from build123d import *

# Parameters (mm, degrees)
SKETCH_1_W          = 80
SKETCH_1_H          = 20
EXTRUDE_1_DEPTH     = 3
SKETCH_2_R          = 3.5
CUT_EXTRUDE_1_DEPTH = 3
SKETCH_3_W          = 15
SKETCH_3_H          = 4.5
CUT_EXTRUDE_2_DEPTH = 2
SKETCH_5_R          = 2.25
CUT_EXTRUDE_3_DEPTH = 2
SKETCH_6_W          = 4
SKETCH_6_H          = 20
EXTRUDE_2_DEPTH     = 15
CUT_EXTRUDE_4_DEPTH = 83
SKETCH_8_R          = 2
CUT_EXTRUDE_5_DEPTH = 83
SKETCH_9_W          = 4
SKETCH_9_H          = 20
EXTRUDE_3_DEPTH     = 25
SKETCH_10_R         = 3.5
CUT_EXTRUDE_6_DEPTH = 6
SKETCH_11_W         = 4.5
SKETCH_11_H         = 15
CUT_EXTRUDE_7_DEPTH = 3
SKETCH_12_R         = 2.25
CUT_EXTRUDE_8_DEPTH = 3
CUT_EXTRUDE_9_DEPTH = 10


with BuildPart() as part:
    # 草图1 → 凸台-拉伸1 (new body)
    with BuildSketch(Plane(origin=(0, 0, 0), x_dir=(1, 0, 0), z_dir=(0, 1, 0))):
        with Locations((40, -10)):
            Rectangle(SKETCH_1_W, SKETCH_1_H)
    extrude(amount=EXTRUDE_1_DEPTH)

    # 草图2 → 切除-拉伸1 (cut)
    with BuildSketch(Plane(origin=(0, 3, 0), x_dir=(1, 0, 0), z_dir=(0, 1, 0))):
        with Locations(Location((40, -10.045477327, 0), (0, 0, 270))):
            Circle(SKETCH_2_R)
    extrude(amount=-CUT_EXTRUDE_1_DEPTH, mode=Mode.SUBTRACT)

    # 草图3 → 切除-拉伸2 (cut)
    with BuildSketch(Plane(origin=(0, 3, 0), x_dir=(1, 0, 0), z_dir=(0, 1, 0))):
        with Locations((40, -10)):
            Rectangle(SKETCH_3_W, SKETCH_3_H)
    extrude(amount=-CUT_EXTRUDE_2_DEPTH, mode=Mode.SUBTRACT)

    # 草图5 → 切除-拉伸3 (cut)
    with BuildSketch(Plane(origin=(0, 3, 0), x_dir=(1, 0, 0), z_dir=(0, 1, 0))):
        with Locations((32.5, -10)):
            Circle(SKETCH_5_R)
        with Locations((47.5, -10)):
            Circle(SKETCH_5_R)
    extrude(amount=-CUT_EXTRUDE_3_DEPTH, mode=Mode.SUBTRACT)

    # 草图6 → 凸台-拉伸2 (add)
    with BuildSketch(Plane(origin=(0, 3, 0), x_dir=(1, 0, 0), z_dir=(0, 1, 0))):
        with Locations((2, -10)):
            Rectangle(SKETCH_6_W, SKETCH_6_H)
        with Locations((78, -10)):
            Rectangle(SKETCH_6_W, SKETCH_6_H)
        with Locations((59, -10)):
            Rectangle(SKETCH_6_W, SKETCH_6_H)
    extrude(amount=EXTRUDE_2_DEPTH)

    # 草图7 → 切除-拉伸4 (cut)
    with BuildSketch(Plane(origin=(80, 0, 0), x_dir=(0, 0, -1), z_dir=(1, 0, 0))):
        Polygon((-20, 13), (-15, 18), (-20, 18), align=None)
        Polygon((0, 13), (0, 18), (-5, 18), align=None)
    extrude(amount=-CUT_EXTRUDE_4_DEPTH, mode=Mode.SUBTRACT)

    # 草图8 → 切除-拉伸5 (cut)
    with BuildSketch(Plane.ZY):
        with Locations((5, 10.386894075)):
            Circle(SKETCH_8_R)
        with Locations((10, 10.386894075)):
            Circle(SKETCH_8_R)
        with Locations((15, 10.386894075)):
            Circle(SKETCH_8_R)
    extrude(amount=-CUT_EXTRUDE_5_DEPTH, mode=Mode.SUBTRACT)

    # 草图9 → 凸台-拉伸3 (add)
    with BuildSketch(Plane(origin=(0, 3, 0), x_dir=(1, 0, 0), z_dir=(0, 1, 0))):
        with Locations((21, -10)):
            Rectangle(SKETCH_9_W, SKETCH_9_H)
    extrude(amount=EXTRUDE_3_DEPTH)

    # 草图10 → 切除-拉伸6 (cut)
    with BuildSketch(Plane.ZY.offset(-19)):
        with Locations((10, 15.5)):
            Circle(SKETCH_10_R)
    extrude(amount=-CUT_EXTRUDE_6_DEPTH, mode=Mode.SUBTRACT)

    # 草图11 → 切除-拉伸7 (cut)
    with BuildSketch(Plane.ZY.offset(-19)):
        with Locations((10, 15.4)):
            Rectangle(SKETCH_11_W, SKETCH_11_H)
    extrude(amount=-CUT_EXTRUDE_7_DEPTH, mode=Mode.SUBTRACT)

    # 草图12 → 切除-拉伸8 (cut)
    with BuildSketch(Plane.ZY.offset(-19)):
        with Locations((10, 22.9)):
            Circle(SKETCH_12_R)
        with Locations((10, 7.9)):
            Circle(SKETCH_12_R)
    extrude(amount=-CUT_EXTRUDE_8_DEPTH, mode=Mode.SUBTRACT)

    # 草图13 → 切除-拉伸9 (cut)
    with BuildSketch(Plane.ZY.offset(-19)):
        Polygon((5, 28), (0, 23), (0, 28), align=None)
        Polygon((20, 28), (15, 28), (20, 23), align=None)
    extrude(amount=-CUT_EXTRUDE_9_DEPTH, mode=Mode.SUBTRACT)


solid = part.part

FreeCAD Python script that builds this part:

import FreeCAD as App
import Part
import Sketcher
from FreeCAD import Vector

doc = App.newDocument("Part")
params = doc.addObject("Spreadsheet::Sheet", "Params")
for row, (alias, value) in enumerate([
    ("sketch1_width", "80 mm"),
    ("sketch1_height", "20 mm"),
    ("pad1_length", "3 mm"),
    ("sketch2_diameter", "7 mm"),
    ("pocket1_length", "3 mm"),
    ("sketch3_width", "15 mm"),
    ("sketch3_height", "4.5 mm"),
    ("pocket2_length", "2 mm"),
    ("sketch4_diameter", "4.5 mm"),
    ("pocket3_length", "2 mm"),
    ("sketch5_width", "4 mm"),
    ("sketch5_height", "20 mm"),
    ("pad2_length", "15 mm"),
    ("sketch6_width", "5 mm"),
    ("pocket4_length", "83 mm"),
    ("sketch7_diameter", "4 mm"),
    ("pocket5_length", "83 mm"),
    ("sketch8_width", "4 mm"),
    ("sketch8_height", "20 mm"),
    ("pad3_length", "25 mm"),
    ("sketch9_diameter", "7 mm"),
    ("pocket6_length", "6 mm"),
    ("sketch10_width", "15 mm"),
    ("sketch10_height", "4.5 mm"),
    ("pocket7_length", "3 mm"),
    ("sketch11_diameter", "4.5 mm"),
    ("pocket8_length", "3 mm"),
    ("sketch12_width", "5 mm"),
    ("pocket9_length", "10 mm"),
], start=1):
    params.set(f"A{row}", alias)
    params.set(f"B{row}", "=" + value)
    params.setAlias(f"B{row}", alias)

body = doc.addObject("PartDesign::Body", "Body")

sketch1 = body.newObject("Sketcher::SketchObject", "Sketch")
sketch1.AttachmentSupport = (doc.getObject("XZ_Plane"), [""])
sketch1.MapMode = "FlatFace"
sketch1.addGeometry([
    Part.LineSegment(Vector(0, 0, 0), Vector(0, 20, 0)),
    Part.LineSegment(Vector(0, 20, 0), Vector(80, 20, 0)),
    Part.LineSegment(Vector(80, 20, 0), Vector(80, 0, 0)),
    Part.LineSegment(Vector(80, 0, 0), Vector(0, 0, 0)),
], False)
sketch1.addConstraint([
    Sketcher.Constraint("Coincident", 0, 2, 1, 1),
    Sketcher.Constraint("Coincident", 1, 2, 2, 1),
    Sketcher.Constraint("Coincident", 2, 2, 3, 1),
    Sketcher.Constraint("Coincident", 3, 2, 0, 1),
    Sketcher.Constraint("Vertical", 0),
    Sketcher.Constraint("Horizontal", 1),
    Sketcher.Constraint("Vertical", 2),
    Sketcher.Constraint("Horizontal", 3),
    Sketcher.Constraint("Coincident", 3, 2, -1, 1),
    Sketcher.Constraint("DistanceX", 1, 1, 1, 2, 80.0),
    Sketcher.Constraint("DistanceY", 0, 1, 0, 2, 20.0),
])
sketch1.setExpression("Constraints[9]", "Params.sketch1_width")
sketch1.setExpression("Constraints[10]", "Params.sketch1_height")
pad1 = body.newObject("PartDesign::Pad", "Pad")
pad1.Profile = sketch1
pad1.setExpression("Length", "Params.pad1_length")
pad1.Reversed = True

sketch2 = body.newObject("Sketcher::SketchObject", "Sketch001")
sketch2.AttachmentSupport = (doc.getObject("XZ_Plane"), [""])
sketch2.MapMode = "FlatFace"
sketch2.AttachmentOffset = App.Placement(Vector(0, 0, -3), App.Rotation())
sketch2.addGeometry(Part.Circle(Vector(40, 10, 0), Vector(0, 0, 1), 3.5), False)
sketch2.addConstraint([
    Sketcher.Constraint("Diameter", 0, 7.0),
    Sketcher.Constraint("DistanceX", -1, 1, 0, 3, 40.0),
    Sketcher.Constraint("DistanceY", -1, 1, 0, 3, 10.045477),
])
sketch2.setExpression("Constraints[0]", "Params.sketch2_diameter")
pocket1 = body.newObject("PartDesign::Pocket", "Pocket")
pocket1.Profile = sketch2
pocket1.setExpression("Length", "Params.pocket1_length")
pocket1.Reversed = True

sketch3 = body.newObject("Sketcher::SketchObject", "Sketch002")
sketch3.AttachmentSupport = (doc.getObject("XZ_Plane"), [""])
sketch3.MapMode = "FlatFace"
sketch3.AttachmentOffset = App.Placement(Vector(0, 0, -3), App.Rotation())
sketch3.addGeometry([
    Part.LineSegment(Vector(32.5, 7.8, 0), Vector(32.5, 12.2, 0)),
    Part.LineSegment(Vector(32.5, 12.2, 0), Vector(47.5, 12.2, 0)),
    Part.LineSegment(Vector(47.5, 12.2, 0), Vector(47.5, 7.8, 0)),
    Part.LineSegment(Vector(47.5, 7.8, 0), Vector(32.5, 7.8, 0)),
], False)
sketch3.addConstraint([
    Sketcher.Constraint("Coincident", 0, 2, 1, 1),
    Sketcher.Constraint("Coincident", 1, 2, 2, 1),
    Sketcher.Constraint("Coincident", 2, 2, 3, 1),
    Sketcher.Constraint("Coincident", 3, 2, 0, 1),
    Sketcher.Constraint("Vertical", 0),
    Sketcher.Constraint("Horizontal", 1),
    Sketcher.Constraint("Vertical", 2),
    Sketcher.Constraint("Horizontal", 3),
    Sketcher.Constraint("DistanceX", 1, 1, 1, 2, 15.0),
    Sketcher.Constraint("DistanceY", 0, 1, 0, 2, 4.5),
    Sketcher.Constraint("DistanceX", -1, 1, 0, 2, 32.5),
    Sketcher.Constraint("DistanceY", -1, 1, 0, 2, 12.25),
])
sketch3.setExpression("Constraints[8]", "Params.sketch3_width")
sketch3.setExpression("Constraints[9]", "Params.sketch3_height")
pocket2 = body.newObject("PartDesign::Pocket", "Pocket001")
pocket2.Profile = sketch3
pocket2.setExpression("Length", "Params.pocket2_length")
pocket2.Reversed = True

sketch4 = body.newObject("Sketcher::SketchObject", "Sketch003")
sketch4.AttachmentSupport = (doc.getObject("XZ_Plane"), [""])
sketch4.MapMode = "FlatFace"
sketch4.AttachmentOffset = App.Placement(Vector(0, 0, -3), App.Rotation())
sketch4.addGeometry([
    Part.Circle(Vector(32.5, 10, 0), Vector(0, 0, 1), 2.2),
    Part.Circle(Vector(47.5, 10, 0), Vector(0, 0, 1), 2.2),
], False)
sketch4.addConstraint([
    Sketcher.Constraint("Equal", 0, 1),
    Sketcher.Constraint("Horizontal", 0, 3, 1, 3),
    Sketcher.Constraint("Diameter", 0, 4.5),
    Sketcher.Constraint("DistanceY", -1, 1, 0, 3, 10.0),
    Sketcher.Constraint("DistanceX", 0, 3, 1, 3, 15.0),
    Sketcher.Constraint("DistanceX", -1, 1, 0, 3, 32.5),
])
sketch4.setExpression("Constraints[2]", "Params.sketch4_diameter")
pocket3 = body.newObject("PartDesign::Pocket", "Pocket002")
pocket3.Profile = sketch4
pocket3.setExpression("Length", "Params.pocket3_length")
pocket3.Reversed = True

sketch5 = body.newObject("Sketcher::SketchObject", "Sketch004")
sketch5.AttachmentSupport = (doc.getObject("XZ_Plane"), [""])
sketch5.MapMode = "FlatFace"
sketch5.AttachmentOffset = App.Placement(Vector(0, 0, -3), App.Rotation())
sketch5.addGeometry([
    Part.LineSegment(Vector(0, 0, 0), Vector(0, 20, 0)),
    Part.LineSegment(Vector(0, 20, 0), Vector(4, 20, 0)),
    Part.LineSegment(Vector(4, 20, 0), Vector(4, 0, 0)),
    Part.LineSegment(Vector(4, 0, 0), Vector(0, 0, 0)),
    Part.LineSegment(Vector(76, 0, 0), Vector(76, 20, 0)),
    Part.LineSegment(Vector(76, 20, 0), Vector(80, 20, 0)),
    Part.LineSegment(Vector(80, 20, 0), Vector(80, 0, 0)),
    Part.LineSegment(Vector(80, 0, 0), Vector(76, 0, 0)),
    Part.LineSegment(Vector(57, 0, 0), Vector(57, 20, 0)),
    Part.LineSegment(Vector(57, 20, 0), Vector(61, 20, 0)),
    Part.LineSegment(Vector(61, 20, 0), Vector(61, 0, 0)),
    Part.LineSegment(Vector(61, 0, 0), Vector(57, 0, 0)),
], False)
sketch5.addConstraint([
    Sketcher.Constraint("Coincident", 0, 2, 1, 1),
    Sketcher.Constraint("Coincident", 1, 2, 2, 1),
    Sketcher.Constraint("Coincident", 2, 2, 3, 1),
    Sketcher.Constraint("Coincident", 3, 2, 0, 1),
    Sketcher.Constraint("Coincident", 4, 2, 5, 1),
    Sketcher.Constraint("Coincident", 5, 2, 6, 1),
    Sketcher.Constraint("Coincident", 6, 2, 7, 1),
    Sketcher.Constraint("Coincident", 7, 2, 4, 1),
    Sketcher.Constraint("Coincident", 8, 2, 9, 1),
    Sketcher.Constraint("Coincident", 9, 2, 10, 1),
    Sketcher.Constraint("Coincident", 10, 2, 11, 1),
    Sketcher.Constraint("Coincident", 11, 2, 8, 1),
    Sketcher.Constraint("Vertical", 0),
    Sketcher.Constraint("Horizontal", 1),
    Sketcher.Constraint("Vertical", 2),
    Sketcher.Constraint("Horizontal", 3),
    Sketcher.Constraint("Vertical", 4),
    Sketcher.Constraint("Horizontal", 5),
    Sketcher.Constraint("Vertical", 6),
    Sketcher.Constraint("Horizontal", 7),
    Sketcher.Constraint("Vertical", 8),
    Sketcher.Constraint("Horizontal", 9),
    Sketcher.Constraint("Vertical", 10),
    Sketcher.Constraint("Horizontal", 11),
    Sketcher.Constraint("Coincident", 3, 2, -1, 1),
    Sketcher.Constraint("PointOnObject", 6, 2, -1),
    Sketcher.Constraint("PointOnObject", 10, 2, -1),
    Sketcher.Constraint("Horizontal", 1, 2, 4, 2),
    Sketcher.Constraint("Horizontal", 5, 2, 8, 2),
    Sketcher.Constraint("Equal", 3, 5),
    Sketcher.Constraint("Equal", 7, 9),
    Sketcher.Constraint("DistanceX", 1, 1, 1, 2, 4.0),
    Sketcher.Constraint("DistanceY", 0, 1, 0, 2, 20.0),
    Sketcher.Constraint("DistanceX", -1, 1, 4, 2, 76.0),
    Sketcher.Constraint("DistanceX", -1, 1, 8, 2, 57.0),
])
sketch5.setExpression("Constraints[31]", "Params.sketch5_width")
sketch5.setExpression("Constraints[32]", "Params.sketch5_height")
pad2 = body.newObject("PartDesign::Pad", "Pad001")
pad2.Profile = sketch5
pad2.setExpression("Length", "Params.pad2_length")
pad2.Reversed = True

sketch6 = body.newObject("Sketcher::SketchObject", "Sketch005")
sketch6.AttachmentSupport = (doc.getObject("YZ_Plane"), [""])
sketch6.MapMode = "FlatFace"
sketch6.AttachmentOffset = App.Placement(Vector(0, 0, 80), App.Rotation())
sketch6.addGeometry([
    Part.LineSegment(Vector(13, 20, 0), Vector(18, 15, 0)),
    Part.LineSegment(Vector(18, 15, 0), Vector(18, 20, 0)),
    Part.LineSegment(Vector(18, 20, 0), Vector(13, 20, 0)),
    Part.LineSegment(Vector(13, 0, 0), Vector(18, 0, 0)),
    Part.LineSegment(Vector(18, 0, 0), Vector(18, 5, 0)),
    Part.LineSegment(Vector(18, 5, 0), Vector(13, 0, 0)),
], False)
sketch6.addConstraint([
    Sketcher.Constraint("Coincident", 0, 2, 1, 1),
    Sketcher.Constraint("Coincident", 1, 2, 2, 1),
    Sketcher.Constraint("Coincident", 2, 2, 0, 1),
    Sketcher.Constraint("Coincident", 3, 2, 4, 1),
    Sketcher.Constraint("Coincident", 4, 2, 5, 1),
    Sketcher.Constraint("Coincident", 5, 2, 3, 1),
    Sketcher.Constraint("Vertical", 1),
    Sketcher.Constraint("Horizontal", 2),
    Sketcher.Constraint("Horizontal", 3),
    Sketcher.Constraint("Vertical", 4),
    Sketcher.Constraint("PointOnObject", 3, 2, -1),
    Sketcher.Constraint("Perpendicular", 0, 5),
    Sketcher.Constraint("Vertical", 1, 2, 3, 2),
    Sketcher.Constraint("Vertical", 2, 2, 5, 2),
    Sketcher.Constraint("Equal", 3, 1),
    Sketcher.Constraint("DistanceX", 2, 2, 2, 1, 5.0),
    Sketcher.Constraint("DistanceX", -1, 1, 0, 2, 18.0),
    Sketcher.Constraint("DistanceY", -1, 1, 0, 2, 15.0),
])
sketch6.setExpression("Constraints[15]", "Params.sketch6_width")
pocket4 = body.newObject("PartDesign::Pocket", "Pocket003")
pocket4.Profile = sketch6
pocket4.setExpression("Length", "Params.pocket4_length")

sketch7 = body.newObject("Sketcher::SketchObject", "Sketch006")
sketch7.AttachmentSupport = (doc.getObject("YZ_Plane"), [""])
sketch7.MapMode = "FlatFace"
sketch7.addGeometry([
    Part.Circle(Vector(10.4, 5, 0), Vector(0, 0, 1), 2),
    Part.Circle(Vector(10.4, 10, 0), Vector(0, 0, 1), 2),
    Part.Circle(Vector(10.4, 15, 0), Vector(0, 0, 1), 2),
], False)
sketch7.addConstraint([
    Sketcher.Constraint("Equal", 0, 1),
    Sketcher.Constraint("Equal", 1, 2),
    Sketcher.Constraint("Vertical", 0, 3, 1, 3),
    Sketcher.Constraint("Vertical", 1, 3, 2, 3),
    Sketcher.Constraint("Diameter", 0, 4.0),
    Sketcher.Constraint("DistanceY", -1, 1, 0, 3, 5.0),
    Sketcher.Constraint("DistanceY", -1, 1, 1, 3, 10.0),
    Sketcher.Constraint("DistanceY", -1, 1, 2, 3, 15.0),
    Sketcher.Constraint("DistanceX", -1, 1, 0, 3, 10.386894),
])
sketch7.setExpression("Constraints[4]", "Params.sketch7_diameter")
pocket5 = body.newObject("PartDesign::Pocket", "Pocket004")
pocket5.Profile = sketch7
pocket5.setExpression("Length", "Params.pocket5_length")
pocket5.Reversed = True

sketch8 = body.newObject("Sketcher::SketchObject", "Sketch007")
sketch8.AttachmentSupport = (doc.getObject("XZ_Plane"), [""])
sketch8.MapMode = "FlatFace"
sketch8.AttachmentOffset = App.Placement(Vector(0, 0, -3), App.Rotation())
sketch8.addGeometry([
    Part.LineSegment(Vector(19, 0, 0), Vector(19, 20, 0)),
    Part.LineSegment(Vector(19, 20, 0), Vector(23, 20, 0)),
    Part.LineSegment(Vector(23, 20, 0), Vector(23, 0, 0)),
    Part.LineSegment(Vector(23, 0, 0), Vector(19, 0, 0)),
], False)
sketch8.addConstraint([
    Sketcher.Constraint("Coincident", 0, 2, 1, 1),
    Sketcher.Constraint("Coincident", 1, 2, 2, 1),
    Sketcher.Constraint("Coincident", 2, 2, 3, 1),
    Sketcher.Constraint("Coincident", 3, 2, 0, 1),
    Sketcher.Constraint("Vertical", 0),
    Sketcher.Constraint("Horizontal", 1),
    Sketcher.Constraint("Vertical", 2),
    Sketcher.Constraint("Horizontal", 3),
    Sketcher.Constraint("PointOnObject", 2, 2, -1),
    Sketcher.Constraint("DistanceX", 1, 1, 1, 2, 4.0),
    Sketcher.Constraint("DistanceY", 0, 1, 0, 2, 20.0),
    Sketcher.Constraint("DistanceX", -1, 1, 0, 2, 19.0),
])
sketch8.setExpression("Constraints[9]", "Params.sketch8_width")
sketch8.setExpression("Constraints[10]", "Params.sketch8_height")
pad3 = body.newObject("PartDesign::Pad", "Pad002")
pad3.Profile = sketch8
pad3.setExpression("Length", "Params.pad3_length")
pad3.Reversed = True

sketch9 = body.newObject("Sketcher::SketchObject", "Sketch008")
sketch9.AttachmentSupport = (doc.getObject("YZ_Plane"), [""])
sketch9.MapMode = "FlatFace"
sketch9.AttachmentOffset = App.Placement(Vector(0, 0, 19), App.Rotation())
sketch9.addGeometry(Part.Circle(Vector(15.5, 10, 0), Vector(0, 0, 1), 3.5), False)
sketch9.addConstraint([
    Sketcher.Constraint("Diameter", 0, 7.0),
    Sketcher.Constraint("DistanceY", -1, 1, 0, 3, 10.0),
    Sketcher.Constraint("DistanceX", -1, 1, 0, 3, 15.5),
])
sketch9.setExpression("Constraints[0]", "Params.sketch9_diameter")
pocket6 = body.newObject("PartDesign::Pocket", "Pocket005")
pocket6.Profile = sketch9
pocket6.setExpression("Length", "Params.pocket6_length")
pocket6.Reversed = True

sketch10 = body.newObject("Sketcher::SketchObject", "Sketch009")
sketch10.AttachmentSupport = (doc.getObject("YZ_Plane"), [""])
sketch10.MapMode = "FlatFace"
sketch10.AttachmentOffset = App.Placement(Vector(0, 0, 19), App.Rotation())
sketch10.addGeometry([
    Part.LineSegment(Vector(22.9, 7.8, 0), Vector(7.9, 7.8, 0)),
    Part.LineSegment(Vector(7.9, 7.8, 0), Vector(7.9, 12.2, 0)),
    Part.LineSegment(Vector(7.9, 12.2, 0), Vector(22.9, 12.2, 0)),
    Part.LineSegment(Vector(22.9, 12.2, 0), Vector(22.9, 7.8, 0)),
], False)
sketch10.addConstraint([
    Sketcher.Constraint("Coincident", 0, 2, 1, 1),
    Sketcher.Constraint("Coincident", 1, 2, 2, 1),
    Sketcher.Constraint("Coincident", 2, 2, 3, 1),
    Sketcher.Constraint("Coincident", 3, 2, 0, 1),
    Sketcher.Constraint("Horizontal", 0),
    Sketcher.Constraint("Vertical", 1),
    Sketcher.Constraint("Horizontal", 2),
    Sketcher.Constraint("Vertical", 3),
    Sketcher.Constraint("DistanceX", 0, 2, 0, 1, 15.0),
    Sketcher.Constraint("DistanceY", 1, 1, 1, 2, 4.5),
    Sketcher.Constraint("DistanceX", -1, 1, 0, 2, 7.9),
    Sketcher.Constraint("DistanceY", -1, 1, 0, 2, 7.75),
])
sketch10.setExpression("Constraints[8]", "Params.sketch10_width")
sketch10.setExpression("Constraints[9]", "Params.sketch10_height")
pocket7 = body.newObject("PartDesign::Pocket", "Pocket006")
pocket7.Profile = sketch10
pocket7.setExpression("Length", "Params.pocket7_length")
pocket7.Reversed = True

sketch11 = body.newObject("Sketcher::SketchObject", "Sketch010")
sketch11.AttachmentSupport = (doc.getObject("YZ_Plane"), [""])
sketch11.MapMode = "FlatFace"
sketch11.AttachmentOffset = App.Placement(Vector(0, 0, 19), App.Rotation())
sketch11.addGeometry([
    Part.Circle(Vector(22.9, 10, 0), Vector(0, 0, 1), 2.2),
    Part.Circle(Vector(7.9, 10, 0), Vector(0, 0, 1), 2.2),
], False)
sketch11.addConstraint([
    Sketcher.Constraint("Equal", 0, 1),
    Sketcher.Constraint("Horizontal", 0, 3, 1, 3),
    Sketcher.Constraint("Diameter", 0, 4.5),
    Sketcher.Constraint("DistanceY", -1, 1, 0, 3, 10.0),
    Sketcher.Constraint("DistanceX", 1, 3, 0, 3, 15.0),
    Sketcher.Constraint("DistanceX", -1, 1, 0, 3, 22.9),
])
sketch11.setExpression("Constraints[2]", "Params.sketch11_diameter")
pocket8 = body.newObject("PartDesign::Pocket", "Pocket007")
pocket8.Profile = sketch11
pocket8.setExpression("Length", "Params.pocket8_length")
pocket8.Reversed = True

sketch12 = body.newObject("Sketcher::SketchObject", "Sketch011")
sketch12.AttachmentSupport = (doc.getObject("YZ_Plane"), [""])
sketch12.MapMode = "FlatFace"
sketch12.AttachmentOffset = App.Placement(Vector(0, 0, 19), App.Rotation())
sketch12.addGeometry([
    Part.LineSegment(Vector(23, 0, 0), Vector(28, 5, 0)),
    Part.LineSegment(Vector(28, 5, 0), Vector(28, 0, 0)),
    Part.LineSegment(Vector(28, 0, 0), Vector(23, 0, 0)),
    Part.LineSegment(Vector(28, 20, 0), Vector(28, 15, 0)),
    Part.LineSegment(Vector(28, 15, 0), Vector(23, 20, 0)),
    Part.LineSegment(Vector(23, 20, 0), Vector(28, 20, 0)),
], False)
sketch12.addConstraint([
    Sketcher.Constraint("Coincident", 0, 2, 1, 1),
    Sketcher.Constraint("Coincident", 1, 2, 2, 1),
    Sketcher.Constraint("Coincident", 2, 2, 0, 1),
    Sketcher.Constraint("Coincident", 3, 2, 4, 1),
    Sketcher.Constraint("Coincident", 4, 2, 5, 1),
    Sketcher.Constraint("Coincident", 5, 2, 3, 1),
    Sketcher.Constraint("Vertical", 1),
    Sketcher.Constraint("Horizontal", 2),
    Sketcher.Constraint("Vertical", 3),
    Sketcher.Constraint("Horizontal", 5),
    Sketcher.Constraint("PointOnObject", 1, 2, -1),
    Sketcher.Constraint("Perpendicular", 0, 4),
    Sketcher.Constraint("Vertical", 1, 2, 3, 2),
    Sketcher.Constraint("Vertical", 2, 2, 4, 2),
    Sketcher.Constraint("Equal", 5, 1),
    Sketcher.Constraint("DistanceX", 2, 2, 2, 1, 5.0),
    Sketcher.Constraint("DistanceX", -1, 1, 0, 2, 28.0),
    Sketcher.Constraint("DistanceY", -1, 1, 3, 2, 15.0),
])
sketch12.setExpression("Constraints[15]", "Params.sketch12_width")
pocket9 = body.newObject("PartDesign::Pocket", "Pocket008")
pocket9.Profile = sketch12
pocket9.setExpression("Length", "Params.pocket9_length")
pocket9.Reversed = True

doc.recompute()
